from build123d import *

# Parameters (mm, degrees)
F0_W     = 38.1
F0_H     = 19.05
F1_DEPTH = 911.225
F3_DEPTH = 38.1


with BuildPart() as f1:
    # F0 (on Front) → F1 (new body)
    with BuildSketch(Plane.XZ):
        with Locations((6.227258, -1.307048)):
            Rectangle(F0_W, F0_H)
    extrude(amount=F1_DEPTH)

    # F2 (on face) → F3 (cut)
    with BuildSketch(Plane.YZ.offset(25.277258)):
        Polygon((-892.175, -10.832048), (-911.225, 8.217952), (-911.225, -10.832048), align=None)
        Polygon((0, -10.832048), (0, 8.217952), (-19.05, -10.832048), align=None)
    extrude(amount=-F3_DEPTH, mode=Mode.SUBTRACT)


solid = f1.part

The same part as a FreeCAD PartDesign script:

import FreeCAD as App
import Part
import Sketcher
from FreeCAD import Vector
Q = App.Units.Quantity

doc = App.newDocument("Part")
params = doc.addObject("Spreadsheet::Sheet", "Params")
for row, (alias, value) in enumerate([
    ("sketch1_width", "1.5 in"),
    ("sketch1_height", "0.75 in"),
    ("pad1_length", "35.875 in"),
    ("sketch2_width", "0.75 in"),
    ("pocket1_length", "1.5 in"),
], start=1):
    params.set(f"A{row}", alias)
    params.set(f"B{row}", "=" + value)
    params.setAlias(f"B{row}", alias)

body = doc.addObject("PartDesign::Body", "Body")

# Sketch on XZ plane
sketch1 = body.newObject("Sketcher::SketchObject", "Sketch")
sketch1.AttachmentSupport = (doc.getObject("XZ_Plane"), [""])
sketch1.MapMode = "FlatFace"
sketch1.addGeometry([
    Part.LineSegment(Vector(-13, 8, 0), Vector(-13, -11, 0)),
    Part.LineSegment(Vector(-13, -11, 0), Vector(25, -11, 0)),
    Part.LineSegment(Vector(25, -11, 0), Vector(25, 8, 0)),
    Part.LineSegment(Vector(25, 8, 0), Vector(-13, 8, 0)),
], False)
sketch1.addConstraint([
    Sketcher.Constraint("Coincident", 0, 2, 1, 1),
    Sketcher.Constraint("Coincident", 1, 2, 2, 1),
    Sketcher.Constraint("Coincident", 2, 2, 3, 1),
    Sketcher.Constraint("Coincident", 3, 2, 0, 1),
    Sketcher.Constraint("Vertical", 0),
    Sketcher.Constraint("Horizontal", 1),
    Sketcher.Constraint("Vertical", 2),
    Sketcher.Constraint("Horizontal", 3),
    Sketcher.Constraint("DistanceX", 1, 1, 1, 2, Q("1.5 in")),
    Sketcher.Constraint("DistanceY", 0, 2, 0, 1, Q("0.75 in")),
    Sketcher.Constraint("DistanceX", -1, 1, 1, 2, Q("25.277258 mm")),
    Sketcher.Constraint("DistanceY", 0, 2, -1, 1, Q("10.832048 mm")),
])
sketch1.setExpression("Constraints[8]", "Params.sketch1_width")
sketch1.setExpression("Constraints[9]", "Params.sketch1_height")
pad1 = body.newObject("PartDesign::Pad", "Pad")
pad1.Profile = sketch1
pad1.setExpression("Length", "Params.pad1_length")

# Sketch on YZ plane
sketch2 = body.newObject("Sketcher::SketchObject", "Sketch001")
sketch2.AttachmentSupport = (doc.getObject("YZ_Plane"), [""])
sketch2.MapMode = "FlatFace"
sketch2.AttachmentOffset = App.Placement(Vector(0, 0, 25.277258), App.Rotation())
sketch2.addGeometry([
    Part.LineSegment(Vector(-892, -11, 0), Vector(-911, 8, 0)),  # 0
    Part.LineSegment(Vector(-911, 8, 0), Vector(-911, -11, 0)),  # 1
    Part.LineSegment(Vector(-911, -11, 0), Vector(-892, -11, 0)),  # 2
    Part.LineSegment(Vector(0, -11, 0), Vector(0, 8, 0)),  # 3
    Part.LineSegment(Vector(0, 8, 0), Vector(-19, -11, 0)),  # 4
    Part.LineSegment(Vector(-19, -11, 0), Vector(0, -11, 0)),  # 5
], False)
sketch2.addConstraint([
    Sketcher.Constraint("Coincident", 0, 2, 1, 1),
    Sketcher.Constraint("Coincident", 1, 2, 2, 1),
    Sketcher.Constraint("Coincident", 2, 2, 0, 1),
    Sketcher.Constraint("Coincident", 3, 2, 4, 1),
    Sketcher.Constraint("Coincident", 4, 2, 5, 1),
    Sketcher.Constraint("Coincident", 5, 2, 3, 1),
    Sketcher.Constraint("Vertical", 1),
    Sketcher.Constraint("Horizontal", 2),
    Sketcher.Constraint("Vertical", 3),
    Sketcher.Constraint("Horizontal", 5),
    Sketcher.Constraint("PointOnObject", 3, 2, -2),
    Sketcher.Constraint("Perpendicular", 0, 4),
    Sketcher.Constraint("Horizontal", 0, 2, 3, 2),
    Sketcher.Constraint("Horizontal", 2, 2, 4, 2),
    Sketcher.Constraint("Equal", 2, 5),
    Sketcher.Constraint("DistanceX", 2, 1, 2, 2, Q("0.75 in")),
    Sketcher.Constraint("DistanceX", 0, 2, -1, 1, Q("35.875 in")),
    Sketcher.Constraint("DistanceY", -1, 1, 0, 2, Q("8.217952 mm")),
])
sketch2.setExpression("Constraints[15]", "Params.sketch2_width")
pocket1 = body.newObject("PartDesign::Pocket", "Pocket")
pocket1.Profile = sketch2
pocket1.setExpression("Length", "Params.pocket1_length")

doc.recompute()
